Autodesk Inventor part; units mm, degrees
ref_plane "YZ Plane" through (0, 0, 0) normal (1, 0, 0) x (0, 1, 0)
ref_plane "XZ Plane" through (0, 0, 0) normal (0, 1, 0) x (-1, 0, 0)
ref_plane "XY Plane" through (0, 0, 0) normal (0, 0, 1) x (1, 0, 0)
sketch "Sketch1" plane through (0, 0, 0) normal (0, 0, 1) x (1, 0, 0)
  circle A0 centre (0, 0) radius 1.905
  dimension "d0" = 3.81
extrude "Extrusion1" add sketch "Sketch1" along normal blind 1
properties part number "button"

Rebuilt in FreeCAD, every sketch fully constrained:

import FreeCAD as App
import Part
import Sketcher

V = App.Vector
Q = App.Units.Quantity

doc = App.newDocument("Part")
body = doc.addObject("PartDesign::Body", "Body")

# Sketch on XY plane
sketch1 = body.newObject("Sketcher::SketchObject", "Sketch")
sketch1.AttachmentSupport = (doc.getObject("XY_Plane"), [""])
sketch1.MapMode = "FlatFace"
sketch1.addGeometry(Part.Circle(V(0, 0, 0), V(0, 0, 1), 1.9), False)
sketch1.addConstraint([
    Sketcher.Constraint("Coincident", 0, 3, -1, 1),
    Sketcher.Constraint("Diameter", 0, Q("3.81 mm")),
])
pad1 = body.newObject("PartDesign::Pad", "Pad")
pad1.Profile = sketch1
pad1.Length = 1

doc.recompute()
